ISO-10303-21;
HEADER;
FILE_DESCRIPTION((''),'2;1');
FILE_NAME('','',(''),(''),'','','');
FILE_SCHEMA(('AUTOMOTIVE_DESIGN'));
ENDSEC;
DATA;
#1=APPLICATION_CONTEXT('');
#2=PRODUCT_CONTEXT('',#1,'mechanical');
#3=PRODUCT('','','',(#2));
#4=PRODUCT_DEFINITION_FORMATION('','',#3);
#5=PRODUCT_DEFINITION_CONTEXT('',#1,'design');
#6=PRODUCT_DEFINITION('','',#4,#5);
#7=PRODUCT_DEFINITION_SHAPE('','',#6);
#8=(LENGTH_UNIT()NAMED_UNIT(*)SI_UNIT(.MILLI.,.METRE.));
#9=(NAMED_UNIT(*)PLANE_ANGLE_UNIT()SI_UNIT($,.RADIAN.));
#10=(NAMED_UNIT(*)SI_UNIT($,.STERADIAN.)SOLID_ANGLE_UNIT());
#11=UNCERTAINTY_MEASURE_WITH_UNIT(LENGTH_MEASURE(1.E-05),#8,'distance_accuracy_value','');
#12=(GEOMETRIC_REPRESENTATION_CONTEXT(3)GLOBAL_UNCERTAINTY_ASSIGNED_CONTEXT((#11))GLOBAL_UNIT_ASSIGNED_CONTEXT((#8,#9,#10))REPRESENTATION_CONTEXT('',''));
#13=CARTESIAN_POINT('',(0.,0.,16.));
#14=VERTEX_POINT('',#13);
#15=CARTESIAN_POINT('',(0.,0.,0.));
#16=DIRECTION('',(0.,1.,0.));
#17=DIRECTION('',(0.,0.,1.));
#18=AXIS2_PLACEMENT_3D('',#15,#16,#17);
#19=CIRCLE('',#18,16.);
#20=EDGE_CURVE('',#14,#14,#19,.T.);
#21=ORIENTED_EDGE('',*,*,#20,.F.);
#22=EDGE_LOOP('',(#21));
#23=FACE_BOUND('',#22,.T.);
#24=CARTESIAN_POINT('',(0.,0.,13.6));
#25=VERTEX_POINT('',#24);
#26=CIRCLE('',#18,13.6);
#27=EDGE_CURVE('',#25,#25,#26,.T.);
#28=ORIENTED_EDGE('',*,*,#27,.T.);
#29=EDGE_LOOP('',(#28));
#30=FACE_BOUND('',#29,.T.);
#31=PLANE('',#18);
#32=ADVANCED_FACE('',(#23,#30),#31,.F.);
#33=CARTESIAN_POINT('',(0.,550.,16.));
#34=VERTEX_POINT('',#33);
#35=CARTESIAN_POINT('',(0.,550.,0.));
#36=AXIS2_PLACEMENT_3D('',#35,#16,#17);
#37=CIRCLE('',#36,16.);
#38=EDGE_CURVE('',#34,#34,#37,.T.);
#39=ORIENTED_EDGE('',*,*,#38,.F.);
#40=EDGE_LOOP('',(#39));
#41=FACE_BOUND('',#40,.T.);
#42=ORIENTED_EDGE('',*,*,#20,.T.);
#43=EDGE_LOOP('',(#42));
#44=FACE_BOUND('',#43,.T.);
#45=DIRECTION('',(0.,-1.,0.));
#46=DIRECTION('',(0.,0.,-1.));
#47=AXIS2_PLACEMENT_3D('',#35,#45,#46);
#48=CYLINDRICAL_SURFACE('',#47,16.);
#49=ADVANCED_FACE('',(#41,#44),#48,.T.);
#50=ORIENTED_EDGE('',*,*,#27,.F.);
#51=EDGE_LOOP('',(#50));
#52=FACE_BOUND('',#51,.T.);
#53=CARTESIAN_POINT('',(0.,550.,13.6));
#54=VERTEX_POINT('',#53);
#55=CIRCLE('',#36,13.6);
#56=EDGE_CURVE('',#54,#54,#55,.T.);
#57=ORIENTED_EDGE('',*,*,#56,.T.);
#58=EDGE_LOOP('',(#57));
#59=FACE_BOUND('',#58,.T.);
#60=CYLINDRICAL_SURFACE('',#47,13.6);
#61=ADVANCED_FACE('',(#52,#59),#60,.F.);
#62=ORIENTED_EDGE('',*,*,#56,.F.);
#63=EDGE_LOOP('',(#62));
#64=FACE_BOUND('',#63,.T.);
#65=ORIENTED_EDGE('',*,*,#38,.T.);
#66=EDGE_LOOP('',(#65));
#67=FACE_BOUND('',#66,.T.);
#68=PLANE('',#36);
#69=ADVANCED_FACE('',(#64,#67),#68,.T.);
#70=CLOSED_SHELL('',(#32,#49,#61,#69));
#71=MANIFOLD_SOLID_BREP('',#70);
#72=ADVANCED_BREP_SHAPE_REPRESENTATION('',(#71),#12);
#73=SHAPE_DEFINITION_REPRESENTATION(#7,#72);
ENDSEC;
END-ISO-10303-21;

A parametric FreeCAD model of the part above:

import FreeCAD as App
import Part
import Sketcher

V = App.Vector

doc = App.newDocument("Part")
body = doc.addObject("PartDesign::Body", "Body")

# Sketch on XZ plane
sketch1 = body.newObject("Sketcher::SketchObject", "Sketch")
sketch1.AttachmentSupport = (doc.getObject("XZ_Plane"), [""])
sketch1.MapMode = "FlatFace"
sketch1.addGeometry([
    Part.Circle(V(0, 0, 0), V(0, 0, 1), 16),
    Part.Circle(V(0, 0, 0), V(0, 0, 1), 14),
], False)
sketch1.addConstraint([
    Sketcher.Constraint("Coincident", 0, 3, -1, 1),
    Sketcher.Constraint("Coincident", 1, 3, -1, 1),
    Sketcher.Constraint("Diameter", 0, 32.0),
    Sketcher.Constraint("Diameter", 1, 27.2),
])
pad1 = body.newObject("PartDesign::Pad", "Pad")
pad1.Profile = sketch1
pad1.Length = 550
pad1.Reversed = True

doc.recompute()
